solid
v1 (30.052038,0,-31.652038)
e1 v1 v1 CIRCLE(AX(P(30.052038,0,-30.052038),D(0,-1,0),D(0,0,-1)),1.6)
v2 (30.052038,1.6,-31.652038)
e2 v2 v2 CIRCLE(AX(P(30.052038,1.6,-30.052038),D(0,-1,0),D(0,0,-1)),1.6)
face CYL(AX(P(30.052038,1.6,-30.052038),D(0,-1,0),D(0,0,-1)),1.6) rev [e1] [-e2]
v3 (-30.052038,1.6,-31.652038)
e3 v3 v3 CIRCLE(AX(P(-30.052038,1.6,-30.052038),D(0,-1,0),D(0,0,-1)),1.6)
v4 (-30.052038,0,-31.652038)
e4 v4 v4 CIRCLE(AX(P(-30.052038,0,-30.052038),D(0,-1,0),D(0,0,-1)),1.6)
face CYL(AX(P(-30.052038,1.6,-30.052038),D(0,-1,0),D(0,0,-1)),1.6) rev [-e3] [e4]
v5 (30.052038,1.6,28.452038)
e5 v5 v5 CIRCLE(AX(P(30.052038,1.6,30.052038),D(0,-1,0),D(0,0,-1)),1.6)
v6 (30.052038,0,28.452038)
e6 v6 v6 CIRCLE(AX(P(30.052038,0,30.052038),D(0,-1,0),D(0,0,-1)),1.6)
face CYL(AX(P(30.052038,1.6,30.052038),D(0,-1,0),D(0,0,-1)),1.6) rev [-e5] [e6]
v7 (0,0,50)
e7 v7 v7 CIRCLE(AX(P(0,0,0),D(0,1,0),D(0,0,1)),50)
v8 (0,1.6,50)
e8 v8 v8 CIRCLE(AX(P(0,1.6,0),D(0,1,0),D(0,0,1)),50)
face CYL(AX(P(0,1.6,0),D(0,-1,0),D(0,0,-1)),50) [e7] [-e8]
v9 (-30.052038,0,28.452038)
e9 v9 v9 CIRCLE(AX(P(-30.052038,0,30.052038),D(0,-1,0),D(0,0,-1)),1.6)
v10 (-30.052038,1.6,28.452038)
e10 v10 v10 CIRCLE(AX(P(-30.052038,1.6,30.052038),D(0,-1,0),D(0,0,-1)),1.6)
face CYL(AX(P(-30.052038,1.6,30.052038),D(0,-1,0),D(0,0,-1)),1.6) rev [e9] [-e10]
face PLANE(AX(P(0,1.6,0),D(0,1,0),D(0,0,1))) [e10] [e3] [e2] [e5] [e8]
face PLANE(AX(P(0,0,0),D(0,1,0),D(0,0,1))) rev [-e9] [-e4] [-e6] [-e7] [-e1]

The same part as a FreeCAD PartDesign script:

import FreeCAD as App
import Part
import Sketcher
from FreeCAD import Vector

doc = App.newDocument("Part")
params = doc.addObject("Spreadsheet::Sheet", "Params")
for row, (alias, value) in enumerate([
    ("sketch1_diameter", "100 mm"),
    ("pad1_length", "1.6 mm"),
    ("sketch2_diameter", "3.2 mm"),
], start=1):
    params.set(f"A{row}", alias)
    params.set(f"B{row}", "=" + value)
    params.setAlias(f"B{row}", alias)

body = doc.addObject("PartDesign::Body", "Body")

# Sketch on XZ plane
sketch1 = body.newObject("Sketcher::SketchObject", "Sketch")
sketch1.AttachmentSupport = (doc.getObject("XZ_Plane"), [""])
sketch1.MapMode = "FlatFace"
sketch1.addGeometry(Part.Circle(Vector(0, 0, 0), Vector(0, 0, 1), 50), False)
sketch1.addConstraint([
    Sketcher.Constraint("Coincident", 0, 3, -1, 1),
    Sketcher.Constraint("Diameter", 0, 100.0),
])
sketch1.setExpression("Constraints[1]", "Params.sketch1_diameter")
pad1 = body.newObject("PartDesign::Pad", "Pad")
pad1.Profile = sketch1
pad1.setExpression("Length", "Params.pad1_length")
pad1.Reversed = True

# Sketch on XZ plane
sketch2 = body.newObject("Sketcher::SketchObject", "Sketch001")
sketch2.AttachmentSupport = (doc.getObject("XZ_Plane"), [""])
sketch2.MapMode = "FlatFace"
sketch2.addGeometry([
    Part.Circle(Vector(-30.1, -30.1, 0), Vector(0, 0, 1), 1.6),
    Part.Circle(Vector(-30.1, 30.1, 0), Vector(0, 0, 1), 1.6),
    Part.Circle(Vector(30.1, 30.1, 0), Vector(0, 0, 1), 1.6),
    Part.Circle(Vector(30.1, -30.1, 0), Vector(0, 0, 1), 1.6),
], False)
sketch2.addConstraint([
    Sketcher.Constraint("Equal", 0, 1),
    Sketcher.Constraint("Equal", 1, 2),
    Sketcher.Constraint("Equal", 2, 3),
    Sketcher.Constraint("Symmetric", 0, 3, 2, 3, -1, 1),
    Sketcher.Constraint("Symmetric", 1, 3, 3, 3, -1, 1),
    Sketcher.Constraint("Symmetric", 1, 3, 2, 3, -2),
    Sketcher.Constraint("Diameter", 0, 3.2),
    Sketcher.Constraint("DistanceX", 0, 3, -1, 1, 30.052038),
    Sketcher.Constraint("DistanceY", 0, 3, -1, 1, 30.052038),
])
sketch2.setExpression("Constraints[6]", "Params.sketch2_diameter")
pocket1 = body.newObject("PartDesign::Pocket", "Pocket")
pocket1.Profile = sketch2
pocket1.Type = "ThroughAll"

doc.recompute()
